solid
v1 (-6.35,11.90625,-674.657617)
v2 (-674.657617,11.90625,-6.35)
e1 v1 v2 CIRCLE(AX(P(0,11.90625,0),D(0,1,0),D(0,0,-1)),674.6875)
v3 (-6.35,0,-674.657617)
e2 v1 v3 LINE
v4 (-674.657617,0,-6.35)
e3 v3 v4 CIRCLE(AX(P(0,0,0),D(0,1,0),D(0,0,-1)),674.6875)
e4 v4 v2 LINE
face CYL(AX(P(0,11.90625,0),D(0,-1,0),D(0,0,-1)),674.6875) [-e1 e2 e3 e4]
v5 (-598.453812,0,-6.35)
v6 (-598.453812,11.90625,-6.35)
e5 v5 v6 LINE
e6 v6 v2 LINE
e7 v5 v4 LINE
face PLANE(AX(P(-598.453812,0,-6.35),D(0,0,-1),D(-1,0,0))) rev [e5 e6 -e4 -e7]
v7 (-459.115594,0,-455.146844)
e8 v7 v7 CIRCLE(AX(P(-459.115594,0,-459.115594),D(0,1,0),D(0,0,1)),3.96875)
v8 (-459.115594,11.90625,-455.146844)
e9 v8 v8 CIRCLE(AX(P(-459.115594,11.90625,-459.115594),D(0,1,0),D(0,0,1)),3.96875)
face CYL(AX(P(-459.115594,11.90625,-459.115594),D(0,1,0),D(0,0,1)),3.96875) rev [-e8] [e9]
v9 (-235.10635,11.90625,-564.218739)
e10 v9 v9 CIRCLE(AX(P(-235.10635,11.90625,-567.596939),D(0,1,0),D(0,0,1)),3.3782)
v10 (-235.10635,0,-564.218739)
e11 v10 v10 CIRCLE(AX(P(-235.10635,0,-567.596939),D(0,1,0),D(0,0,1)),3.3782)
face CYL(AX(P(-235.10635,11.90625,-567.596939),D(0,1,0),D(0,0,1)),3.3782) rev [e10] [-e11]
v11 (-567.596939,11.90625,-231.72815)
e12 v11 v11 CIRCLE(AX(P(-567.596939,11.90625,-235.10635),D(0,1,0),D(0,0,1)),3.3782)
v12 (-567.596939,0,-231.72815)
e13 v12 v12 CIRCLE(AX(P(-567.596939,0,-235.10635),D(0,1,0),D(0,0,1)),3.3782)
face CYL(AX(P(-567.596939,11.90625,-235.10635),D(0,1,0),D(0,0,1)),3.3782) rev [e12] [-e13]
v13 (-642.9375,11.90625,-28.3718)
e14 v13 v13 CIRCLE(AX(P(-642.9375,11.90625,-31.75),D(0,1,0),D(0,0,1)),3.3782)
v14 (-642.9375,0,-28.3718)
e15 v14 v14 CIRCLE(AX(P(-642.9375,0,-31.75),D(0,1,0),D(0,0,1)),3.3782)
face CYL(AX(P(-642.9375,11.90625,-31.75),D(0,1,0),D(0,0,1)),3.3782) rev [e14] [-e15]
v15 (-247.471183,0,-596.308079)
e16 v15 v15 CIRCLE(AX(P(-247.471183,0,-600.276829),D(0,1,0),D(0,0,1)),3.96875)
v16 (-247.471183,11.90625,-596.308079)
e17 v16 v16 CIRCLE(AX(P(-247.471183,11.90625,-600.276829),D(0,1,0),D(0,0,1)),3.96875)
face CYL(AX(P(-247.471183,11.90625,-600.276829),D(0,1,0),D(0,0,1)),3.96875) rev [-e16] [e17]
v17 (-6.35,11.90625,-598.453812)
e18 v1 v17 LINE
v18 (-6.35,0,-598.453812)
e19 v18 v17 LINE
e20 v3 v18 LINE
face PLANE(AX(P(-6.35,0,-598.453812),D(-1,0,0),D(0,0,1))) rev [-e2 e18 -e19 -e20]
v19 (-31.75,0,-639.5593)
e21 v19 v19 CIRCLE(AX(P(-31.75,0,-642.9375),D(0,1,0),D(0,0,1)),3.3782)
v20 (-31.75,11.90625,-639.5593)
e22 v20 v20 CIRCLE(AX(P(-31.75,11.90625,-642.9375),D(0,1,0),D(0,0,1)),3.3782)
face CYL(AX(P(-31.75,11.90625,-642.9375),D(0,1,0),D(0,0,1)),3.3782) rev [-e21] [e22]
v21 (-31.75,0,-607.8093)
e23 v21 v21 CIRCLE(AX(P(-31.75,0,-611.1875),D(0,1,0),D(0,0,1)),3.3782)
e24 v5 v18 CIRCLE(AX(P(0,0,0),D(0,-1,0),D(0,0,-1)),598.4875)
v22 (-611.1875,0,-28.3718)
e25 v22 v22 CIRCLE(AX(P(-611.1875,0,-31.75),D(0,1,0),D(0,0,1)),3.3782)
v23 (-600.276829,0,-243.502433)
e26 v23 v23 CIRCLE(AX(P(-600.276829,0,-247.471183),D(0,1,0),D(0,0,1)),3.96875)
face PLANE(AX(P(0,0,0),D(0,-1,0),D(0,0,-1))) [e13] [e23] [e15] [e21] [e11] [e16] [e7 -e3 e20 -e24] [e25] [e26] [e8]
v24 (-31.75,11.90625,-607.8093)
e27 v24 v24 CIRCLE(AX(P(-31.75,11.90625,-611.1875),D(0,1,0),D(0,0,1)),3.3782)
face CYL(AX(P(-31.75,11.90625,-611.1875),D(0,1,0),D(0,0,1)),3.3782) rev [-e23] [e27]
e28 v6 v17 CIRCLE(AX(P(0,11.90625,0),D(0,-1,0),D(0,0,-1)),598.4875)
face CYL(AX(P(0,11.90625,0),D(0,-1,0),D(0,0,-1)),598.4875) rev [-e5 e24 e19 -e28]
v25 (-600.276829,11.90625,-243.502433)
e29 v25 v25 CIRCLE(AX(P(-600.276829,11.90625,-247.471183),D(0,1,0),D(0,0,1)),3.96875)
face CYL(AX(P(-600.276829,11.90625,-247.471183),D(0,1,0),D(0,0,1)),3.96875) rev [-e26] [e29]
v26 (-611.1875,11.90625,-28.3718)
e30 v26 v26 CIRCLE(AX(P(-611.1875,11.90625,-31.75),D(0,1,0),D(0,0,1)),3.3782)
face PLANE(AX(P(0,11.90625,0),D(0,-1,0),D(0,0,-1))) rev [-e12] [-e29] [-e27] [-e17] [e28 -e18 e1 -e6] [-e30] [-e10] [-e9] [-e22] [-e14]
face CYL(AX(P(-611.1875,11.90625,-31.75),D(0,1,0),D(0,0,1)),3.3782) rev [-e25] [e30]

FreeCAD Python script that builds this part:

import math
import FreeCAD as App
import Part
import Sketcher

V = App.Vector
Q = App.Units.Quantity


def add_polygon(sketch, points):
    """Adds a closed chain of lines whose ends are joined by coincident constraints."""
    first, n = sketch.GeometryCount, len(points)
    for a, b in zip(points, points[1:] + points[:1]):
        sketch.addGeometry(Part.LineSegment(App.Vector(*a, 0), App.Vector(*b, 0)), False)
    for i in range(n):
        sketch.addConstraint(Sketcher.Constraint("Coincident", first + i, 2, first + (i + 1) % n, 1))

doc = App.newDocument("Part")
body = doc.addObject("PartDesign::Body", "Body")

sketch1 = body.newObject("Sketcher::SketchObject", "Sketch")
sketch1.AttachmentSupport = (doc.getObject("XZ_Plane"), [""])
sketch1.MapMode = "FlatFace"
sketch1.addGeometry([
    Part.LineSegment(V(-675, 0, 0), V(-598, 0, 0)),
    Part.ArcOfCircle(Part.Circle(V(0, 0, 0), V(0, 0, 1), 598), math.radians(180), math.radians(360)),
    Part.LineSegment(V(598, 0, 0), V(675, 0, 0)),
    Part.ArcOfCircle(Part.Circle(V(0, 0, 0), V(0, 0, 1), 675), math.radians(180), math.radians(360)),
], False)
sketch1.addConstraint([
    Sketcher.Constraint("Coincident", 0, 2, 1, 1),
    Sketcher.Constraint("Coincident", 1, 2, 2, 1),
    Sketcher.Constraint("Coincident", 2, 2, 3, 2),
    Sketcher.Constraint("Coincident", 3, 1, 0, 1),
    Sketcher.Constraint("Horizontal", 0),
    Sketcher.Constraint("Horizontal", 2),
    Sketcher.Constraint("Coincident", 1, 3, -1, 1),
    Sketcher.Constraint("Coincident", 3, 3, -1, 1),
    Sketcher.Constraint("PointOnObject", 0, 2, -1),
    Sketcher.Constraint("PointOnObject", 2, 2, -1),
    Sketcher.Constraint("DistanceX", 0, 1, 0, 2, Q("3 in")),
    Sketcher.Constraint("Radius", 1, Q("23.5625 in")),
])
pad1 = body.newObject("PartDesign::Pad", "Pad")
pad1.Profile = sketch1
pad1.Length = Q("0.46875 in")
pad1.Reversed = True

sketch2 = body.newObject("Sketcher::SketchObject", "Sketch001")
sketch2.AttachmentSupport = (doc.getObject("XZ_Plane"), [""])
sketch2.MapMode = "FlatFace"
sketch2.AttachmentOffset = App.Placement(V(0, 0, -0.46875 * 25.4), App.Rotation())
add_polygon(sketch2, [(-6, -637), (-6, -598), (6, -598), (6, -637)])
add_polygon(sketch2, [(598, -6), (598, 6), (637, 6), (637, -6)])
add_polygon(sketch2, [(-6, 598), (-6, 637), (6, 637), (6, 598)])
add_polygon(sketch2, [(-637, -6), (-637, 6), (-598, 6), (-598, -6)])
sketch2.addConstraint([
    Sketcher.Constraint("Vertical", 0),
    Sketcher.Constraint("Horizontal", 1),
    Sketcher.Constraint("Vertical", 2),
    Sketcher.Constraint("Horizontal", 3),
    Sketcher.Constraint("Vertical", 4),
    Sketcher.Constraint("Horizontal", 5),
    Sketcher.Constraint("Vertical", 6),
    Sketcher.Constraint("Horizontal", 7),
    Sketcher.Constraint("Vertical", 8),
    Sketcher.Constraint("Horizontal", 9),
    Sketcher.Constraint("Vertical", 10),
    Sketcher.Constraint("Horizontal", 11),
    Sketcher.Constraint("Vertical", 12),
    Sketcher.Constraint("Horizontal", 13),
    Sketcher.Constraint("Vertical", 14),
    Sketcher.Constraint("Horizontal", 15),
    Sketcher.Constraint("Symmetric", 2, 2, 8, 2, -1, 1),
    Sketcher.Constraint("Symmetric", 0, 2, 10, 2, -1, 1),
    Sketcher.Constraint("Symmetric", 6, 2, 12, 2, -1, 1),
    Sketcher.Constraint("Symmetric", 4, 2, 14, 2, -1, 1),
    Sketcher.Constraint("Horizontal", 5, 2, 12, 2),
    Sketcher.Constraint("Vertical", 3, 2, 8, 2),
    Sketcher.Constraint("Equal", 15, 0),
    Sketcher.Constraint("Equal", 11, 4),
    Sketcher.Constraint("DistanceX", 1, 1, 1, 2, Q("0.5 in")),
    Sketcher.Constraint("DistanceY", 2, 2, -1, 1, Q("25.0625 in")),
    Sketcher.Constraint("DistanceX", -1, 1, 5, 2, Q("25.0625 in")),
    Sketcher.Constraint("DistanceX", 5, 1, 5, 2, 38.133688),
])
pocket1 = body.newObject("PartDesign::Pocket", "Pocket")
pocket1.Profile = sketch2
pocket1.Type = "ThroughAll"
pocket1.Reversed = True

sketch3 = body.newObject("Sketcher::SketchObject", "Sketch002")
sketch3.AttachmentSupport = (doc.getObject("XZ_Plane"), [""])
sketch3.MapMode = "FlatFace"
sketch3.AttachmentOffset = App.Placement(V(0, 0, -0.46875 * 25.4), App.Rotation())
sketch3.addGeometry([
    Part.Circle(V(-31.8, -642.9, 0), V(0, 0, 1), 3.4),
    Part.Circle(V(-31.8, -611.2, 0), V(0, 0, 1), 3.4),
    Part.Circle(V(-611.2, -31.8, 0), V(0, 0, 1), 3.4),
    Part.Circle(V(-642.9, -31.8, 0), V(0, 0, 1), 3.4),
    Part.Circle(V(-567.6, -235.1, 0), V(0, 0, 1), 3.4),
    Part.Circle(V(-235.1, -567.6, 0), V(0, 0, 1), 3.4),
], False)
sketch3.addConstraint([
    Sketcher.Constraint("Equal", 0, 1),
    Sketcher.Constraint("Equal", 1, 2),
    Sketcher.Constraint("Equal", 2, 3),
    Sketcher.Constraint("Equal", 3, 4),
    Sketcher.Constraint("Equal", 4, 5),
    Sketcher.Constraint("Horizontal", 2, 3, 3, 3),
    Sketcher.Constraint("Vertical", 0, 3, 1, 3),
    Sketcher.Constraint("Diameter", 0, Q("0.266 in")),
    Sketcher.Constraint("DistanceX", 0, 3, -1, 1, Q("1.25 in")),
    Sketcher.Constraint("DistanceY", 2, 3, -1, 1, Q("1.25 in")),
    Sketcher.Constraint("DistanceY", 0, 3, 1, 3, Q("1.25 in")),
    Sketcher.Constraint("DistanceX", 3, 3, 2, 3, Q("1.25 in")),
    Sketcher.Constraint("DistanceY", 0, 3, -1, 1, Q("25.3125 in")),
    Sketcher.Constraint("DistanceX", 2, 3, -1, 1, Q("24.0625 in")),
    Sketcher.Constraint("DistanceX", 4, 3, -1, 1, 567.596939),
    Sketcher.Constraint("DistanceY", 4, 3, -1, 1, 235.10635),
    Sketcher.Constraint("DistanceX", 5, 3, -1, 1, 235.10635),
    Sketcher.Constraint("DistanceY", 5, 3, -1, 1, 567.596939),
])
doc.recompute()
hole = body.newObject("PartDesign::Hole", "Hole")
hole.Profile = sketch3
hole.ThreadType = "None"
hole.Diameter = Q("0.266 in")
hole.DepthType = "ThroughAll"
hole.Reversed = True

sketch4 = body.newObject("Sketcher::SketchObject", "Sketch003")
sketch4.AttachmentSupport = (doc.getObject("XZ_Plane"), [""])
sketch4.MapMode = "FlatFace"
sketch4.AttachmentOffset = App.Placement(V(0, 0, -0.46875 * 25.4), App.Rotation())
add_polygon(sketch4, [(0, -675), (0, 0), (675, 0), (675, -675)])
sketch4.addConstraint([
    Sketcher.Constraint("Vertical", 0),
    Sketcher.Constraint("Horizontal", 1),
    Sketcher.Constraint("Vertical", 2),
    Sketcher.Constraint("Horizontal", 3),
    Sketcher.Constraint("Coincident", 0, 2, -1, 1),
    Sketcher.Constraint("Equal", 3, 0),
    Sketcher.Constraint("DistanceX", 1, 1, 1, 2, Q("26.5625 in")),
])
pocket2 = body.newObject("PartDesign::Pocket", "Pocket001")
pocket2.Profile = sketch4
pocket2.Type = "ThroughAll"
pocket2.Reversed = True

sketch5 = body.newObject("Sketcher::SketchObject", "Sketch004")
sketch5.AttachmentSupport = (doc.getObject("XZ_Plane"), [""])
sketch5.MapMode = "FlatFace"
sketch5.AttachmentOffset = App.Placement(V(0, 0, -0.46875 * 25.4), App.Rotation())
sketch5.addGeometry([
    Part.Circle(V(-247.5, -600.3, 0), V(0, 0, 1), 4),
    Part.Circle(V(-459.1, -459.1, 0), V(0, 0, 1), 4),
    Part.Circle(V(-600.3, -247.5, 0), V(0, 0, 1), 4),
], False)
sketch5.addConstraint([
    Sketcher.Constraint("Equal", 0, 1),
    Sketcher.Constraint("Equal", 1, 2),
    Sketcher.Constraint("Diameter", 0, Q("0.3125 in")),
    Sketcher.Constraint("DistanceY", 0, 3, -1, 1, 600.276829),
    Sketcher.Constraint("DistanceX", 2, 3, -1, 1, 600.276829),
    Sketcher.Constraint("DistanceX", 1, 3, 0, 3, 211.644412),
    Sketcher.Constraint("DistanceY", 1, 3, 2, 3, 211.644412),
    Sketcher.Constraint("DistanceX", 0, 3, -1, 1, 247.471183),
    Sketcher.Constraint("DistanceY", 1, 3, -1, 1, 459.115594),
])
doc.recompute()
hole2 = body.newObject("PartDesign::Hole", "Hole001")
hole2.Profile = sketch5
hole2.ThreadType = "None"
hole2.Diameter = Q("0.3125 in")
hole2.DepthType = "ThroughAll"
hole2.Reversed = True

sketch6 = body.newObject("Sketcher::SketchObject", "Sketch005")
sketch6.AttachmentSupport = (doc.getObject("XZ_Plane"), [""])
sketch6.MapMode = "FlatFace"
sketch6.AttachmentOffset = App.Placement(V(0, 0, -0.46875 * 25.4), App.Rotation())
add_polygon(sketch6, [(-6, -675), (-6, -598), (0, -598), (0, -675)])
add_polygon(sketch6, [(-675, -6), (-675, 0), (-598, 0), (-598, -6)])
sketch6.addConstraint([
    Sketcher.Constraint("Vertical", 0),
    Sketcher.Constraint("Horizontal", 1),
    Sketcher.Constraint("Vertical", 2),
    Sketcher.Constraint("Horizontal", 3),
    Sketcher.Constraint("Vertical", 4),
    Sketcher.Constraint("Horizontal", 5),
    Sketcher.Constraint("Vertical", 6),
    Sketcher.Constraint("Horizontal", 7),
    Sketcher.Constraint("PointOnObject", 1, 2, -2),
    Sketcher.Constraint("PointOnObject", 4, 2, -1),
    Sketcher.Constraint("Equal", 7, 0),
    Sketcher.Constraint("Equal", 3, 4),
    Sketcher.Constraint("DistanceX", 1, 1, 1, 2, Q("0.25 in")),
    Sketcher.Constraint("DistanceY", 2, 2, -1, 1, Q("26.5625 in")),
    Sketcher.Constraint("DistanceX", 4, 2, -1, 1, Q("26.5625 in")),
    Sketcher.Constraint("DistanceX", 5, 1, 5, 2, 76.233688),
])
pocket3 = body.newObject("PartDesign::Pocket", "Pocket002")
pocket3.Profile = sketch6
pocket3.Type = "ThroughAll"
pocket3.Reversed = True

doc.recompute()
